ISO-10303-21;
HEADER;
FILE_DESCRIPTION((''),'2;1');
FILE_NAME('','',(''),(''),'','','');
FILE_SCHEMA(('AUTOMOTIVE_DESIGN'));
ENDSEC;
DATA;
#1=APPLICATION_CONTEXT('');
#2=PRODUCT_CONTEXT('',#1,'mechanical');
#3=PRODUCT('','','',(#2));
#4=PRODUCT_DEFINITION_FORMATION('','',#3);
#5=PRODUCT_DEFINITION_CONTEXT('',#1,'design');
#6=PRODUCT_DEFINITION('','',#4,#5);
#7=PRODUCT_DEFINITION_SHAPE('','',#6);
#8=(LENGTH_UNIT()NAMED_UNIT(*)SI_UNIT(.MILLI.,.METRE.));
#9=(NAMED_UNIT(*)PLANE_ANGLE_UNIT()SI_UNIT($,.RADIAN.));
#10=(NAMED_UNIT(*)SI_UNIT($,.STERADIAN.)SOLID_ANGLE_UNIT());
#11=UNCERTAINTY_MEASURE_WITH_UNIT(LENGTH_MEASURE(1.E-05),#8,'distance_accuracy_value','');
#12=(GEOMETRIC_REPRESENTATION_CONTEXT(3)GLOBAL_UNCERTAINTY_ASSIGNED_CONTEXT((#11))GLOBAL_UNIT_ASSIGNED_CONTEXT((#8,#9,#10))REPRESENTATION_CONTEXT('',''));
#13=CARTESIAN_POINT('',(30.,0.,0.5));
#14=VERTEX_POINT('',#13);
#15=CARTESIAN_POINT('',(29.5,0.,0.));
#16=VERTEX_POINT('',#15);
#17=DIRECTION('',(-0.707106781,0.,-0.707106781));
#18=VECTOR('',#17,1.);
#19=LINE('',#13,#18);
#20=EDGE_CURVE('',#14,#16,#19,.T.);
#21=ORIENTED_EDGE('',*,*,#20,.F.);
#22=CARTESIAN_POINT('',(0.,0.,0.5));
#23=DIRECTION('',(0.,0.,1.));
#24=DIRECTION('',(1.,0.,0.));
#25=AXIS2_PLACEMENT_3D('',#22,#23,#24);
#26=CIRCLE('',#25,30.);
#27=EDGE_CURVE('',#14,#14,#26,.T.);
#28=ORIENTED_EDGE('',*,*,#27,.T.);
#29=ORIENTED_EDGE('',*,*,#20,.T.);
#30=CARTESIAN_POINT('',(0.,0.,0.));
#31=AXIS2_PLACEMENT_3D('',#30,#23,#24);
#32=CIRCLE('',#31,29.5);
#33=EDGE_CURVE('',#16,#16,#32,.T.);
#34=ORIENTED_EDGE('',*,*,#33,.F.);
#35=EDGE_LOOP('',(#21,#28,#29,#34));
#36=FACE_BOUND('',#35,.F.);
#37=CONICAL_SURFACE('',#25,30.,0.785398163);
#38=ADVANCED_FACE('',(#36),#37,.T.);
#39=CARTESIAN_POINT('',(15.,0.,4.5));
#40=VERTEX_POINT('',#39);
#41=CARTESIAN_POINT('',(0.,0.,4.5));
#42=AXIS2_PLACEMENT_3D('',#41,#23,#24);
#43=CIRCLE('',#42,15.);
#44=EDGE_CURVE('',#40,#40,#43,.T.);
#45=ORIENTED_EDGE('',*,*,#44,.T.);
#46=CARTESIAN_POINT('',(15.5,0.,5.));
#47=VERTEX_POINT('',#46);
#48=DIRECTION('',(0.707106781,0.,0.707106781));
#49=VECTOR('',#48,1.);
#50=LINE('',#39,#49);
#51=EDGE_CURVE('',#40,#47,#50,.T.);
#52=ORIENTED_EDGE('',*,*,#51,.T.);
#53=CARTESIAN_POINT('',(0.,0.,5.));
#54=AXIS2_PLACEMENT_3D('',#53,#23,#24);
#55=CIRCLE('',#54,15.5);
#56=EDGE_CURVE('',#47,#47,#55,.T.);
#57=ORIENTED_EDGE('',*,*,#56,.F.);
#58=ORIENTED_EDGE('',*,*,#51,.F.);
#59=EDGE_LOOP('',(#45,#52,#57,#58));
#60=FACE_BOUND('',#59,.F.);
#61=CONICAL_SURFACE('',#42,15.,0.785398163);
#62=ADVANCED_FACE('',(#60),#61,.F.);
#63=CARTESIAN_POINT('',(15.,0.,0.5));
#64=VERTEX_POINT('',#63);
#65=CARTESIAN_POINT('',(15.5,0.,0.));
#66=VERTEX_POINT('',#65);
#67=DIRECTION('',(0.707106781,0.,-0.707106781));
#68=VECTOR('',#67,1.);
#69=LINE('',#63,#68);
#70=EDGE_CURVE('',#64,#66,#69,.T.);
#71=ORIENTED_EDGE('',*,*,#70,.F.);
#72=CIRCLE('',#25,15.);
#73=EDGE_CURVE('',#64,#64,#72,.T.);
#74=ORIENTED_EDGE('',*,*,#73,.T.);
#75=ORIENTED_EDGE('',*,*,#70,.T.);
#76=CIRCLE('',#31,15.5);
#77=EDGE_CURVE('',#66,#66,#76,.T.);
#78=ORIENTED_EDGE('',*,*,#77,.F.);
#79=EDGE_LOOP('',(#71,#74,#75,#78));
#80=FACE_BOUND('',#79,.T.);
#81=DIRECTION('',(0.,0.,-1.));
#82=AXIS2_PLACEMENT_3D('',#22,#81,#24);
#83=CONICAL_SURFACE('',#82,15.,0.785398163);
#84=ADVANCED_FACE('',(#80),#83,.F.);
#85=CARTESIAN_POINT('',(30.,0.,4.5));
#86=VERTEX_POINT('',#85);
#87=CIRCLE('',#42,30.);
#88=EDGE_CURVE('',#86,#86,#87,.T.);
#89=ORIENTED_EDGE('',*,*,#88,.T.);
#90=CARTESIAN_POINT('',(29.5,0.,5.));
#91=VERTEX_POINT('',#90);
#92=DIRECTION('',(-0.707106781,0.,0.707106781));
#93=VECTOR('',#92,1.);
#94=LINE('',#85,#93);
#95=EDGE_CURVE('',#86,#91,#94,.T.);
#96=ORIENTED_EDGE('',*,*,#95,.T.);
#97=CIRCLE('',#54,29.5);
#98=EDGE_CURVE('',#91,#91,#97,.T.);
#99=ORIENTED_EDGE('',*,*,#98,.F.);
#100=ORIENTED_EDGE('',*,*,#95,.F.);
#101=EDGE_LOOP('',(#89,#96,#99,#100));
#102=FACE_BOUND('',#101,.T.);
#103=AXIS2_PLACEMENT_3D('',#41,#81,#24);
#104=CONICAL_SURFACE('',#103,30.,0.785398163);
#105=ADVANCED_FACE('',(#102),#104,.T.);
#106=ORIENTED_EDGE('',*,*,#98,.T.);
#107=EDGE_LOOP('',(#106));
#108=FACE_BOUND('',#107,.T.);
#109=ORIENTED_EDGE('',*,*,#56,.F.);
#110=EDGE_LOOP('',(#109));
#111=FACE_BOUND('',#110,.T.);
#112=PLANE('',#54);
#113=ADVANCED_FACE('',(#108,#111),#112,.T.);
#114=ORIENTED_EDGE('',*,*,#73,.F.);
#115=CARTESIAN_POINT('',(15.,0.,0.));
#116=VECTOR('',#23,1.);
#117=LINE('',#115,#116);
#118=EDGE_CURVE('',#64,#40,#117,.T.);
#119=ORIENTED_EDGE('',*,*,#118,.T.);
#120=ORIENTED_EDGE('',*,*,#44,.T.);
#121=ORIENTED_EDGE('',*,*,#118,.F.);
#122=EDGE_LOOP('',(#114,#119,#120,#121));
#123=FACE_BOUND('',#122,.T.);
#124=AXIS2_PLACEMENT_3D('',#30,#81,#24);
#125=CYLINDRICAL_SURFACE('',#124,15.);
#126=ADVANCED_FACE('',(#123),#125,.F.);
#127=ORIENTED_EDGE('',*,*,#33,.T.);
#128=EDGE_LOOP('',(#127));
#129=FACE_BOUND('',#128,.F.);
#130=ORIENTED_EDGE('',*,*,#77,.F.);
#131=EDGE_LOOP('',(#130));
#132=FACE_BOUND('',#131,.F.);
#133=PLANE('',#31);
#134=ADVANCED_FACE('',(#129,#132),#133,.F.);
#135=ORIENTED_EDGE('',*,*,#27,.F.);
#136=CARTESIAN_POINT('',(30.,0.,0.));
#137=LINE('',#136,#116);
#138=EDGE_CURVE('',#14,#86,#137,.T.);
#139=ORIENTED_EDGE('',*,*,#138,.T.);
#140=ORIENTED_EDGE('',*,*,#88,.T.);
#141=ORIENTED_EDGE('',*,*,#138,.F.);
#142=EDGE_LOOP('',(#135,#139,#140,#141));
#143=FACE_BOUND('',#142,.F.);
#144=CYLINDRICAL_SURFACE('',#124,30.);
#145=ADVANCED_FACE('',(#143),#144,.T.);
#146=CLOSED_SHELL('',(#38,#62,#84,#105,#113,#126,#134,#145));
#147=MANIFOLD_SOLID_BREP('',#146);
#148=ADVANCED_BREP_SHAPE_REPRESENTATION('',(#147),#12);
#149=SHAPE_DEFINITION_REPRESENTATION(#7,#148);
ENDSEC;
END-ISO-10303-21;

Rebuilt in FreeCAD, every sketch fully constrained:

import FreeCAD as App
import Part
import Sketcher


def edges_at(feature, points):
    """Names of the edges that pass closest to the given points."""
    edges = feature.Shape.Edges
    near = lambda p: min(range(len(edges)), key=lambda i: edges[i].distToShape(Part.Vertex(*p))[0])
    return sorted({f"Edge{near(p) + 1}" for p in points})

doc = App.newDocument("Part")
params = doc.addObject("Spreadsheet::Sheet", "Params")
for row, (alias, value) in enumerate([
    ("sketch1_diameter", "60 mm"),
    ("sketch1_diameter2", "30 mm"),
    ("pad1_length", "5 mm"),
    ("chamfer_size", "0.5 mm"),
], start=1):
    params.set(f"A{row}", alias)
    params.set(f"B{row}", "=" + value)
    params.setAlias(f"B{row}", alias)

body = doc.addObject("PartDesign::Body", "Body")

# Sketch on XY plane
sketch1 = body.newObject("Sketcher::SketchObject", "Sketch")
sketch1.AttachmentSupport = (doc.getObject("XY_Plane"), [""])
sketch1.MapMode = "FlatFace"
sketch1.addGeometry(Part.Circle(App.Vector(0, 0, 0), App.Vector(0, 0, 1), 30), False)
sketch1.addGeometry(Part.Circle(App.Vector(0, 0, 0), App.Vector(0, 0, 1), 15), False)
sketch1.addConstraint(Sketcher.Constraint("Coincident", 0, 3, -1, 1))
sketch1.addConstraint(Sketcher.Constraint("Coincident", 1, 3, -1, 1))
sketch1.addConstraint(Sketcher.Constraint("Diameter", 0, 60.0))
sketch1.addConstraint(Sketcher.Constraint("Diameter", 1, 30.0))
sketch1.setExpression("Constraints[2]", "Params.sketch1_diameter")
sketch1.setExpression("Constraints[3]", "Params.sketch1_diameter2")
pad1 = body.newObject("PartDesign::Pad", "Pad")
pad1.Profile = sketch1
pad1.setExpression("Length", "Params.pad1_length")
doc.recompute()

chamfer = body.newObject("PartDesign::Chamfer", "Chamfer")
chamfer.Base = (pad1, edges_at(pad1, [
    (-15, 0, 5),
    (-15, 0, 0),
    (-30, 0, 5),
    (-30, 0, 0),
]))
chamfer.setExpression("Size", "Params.chamfer_size")

doc.recompute()
